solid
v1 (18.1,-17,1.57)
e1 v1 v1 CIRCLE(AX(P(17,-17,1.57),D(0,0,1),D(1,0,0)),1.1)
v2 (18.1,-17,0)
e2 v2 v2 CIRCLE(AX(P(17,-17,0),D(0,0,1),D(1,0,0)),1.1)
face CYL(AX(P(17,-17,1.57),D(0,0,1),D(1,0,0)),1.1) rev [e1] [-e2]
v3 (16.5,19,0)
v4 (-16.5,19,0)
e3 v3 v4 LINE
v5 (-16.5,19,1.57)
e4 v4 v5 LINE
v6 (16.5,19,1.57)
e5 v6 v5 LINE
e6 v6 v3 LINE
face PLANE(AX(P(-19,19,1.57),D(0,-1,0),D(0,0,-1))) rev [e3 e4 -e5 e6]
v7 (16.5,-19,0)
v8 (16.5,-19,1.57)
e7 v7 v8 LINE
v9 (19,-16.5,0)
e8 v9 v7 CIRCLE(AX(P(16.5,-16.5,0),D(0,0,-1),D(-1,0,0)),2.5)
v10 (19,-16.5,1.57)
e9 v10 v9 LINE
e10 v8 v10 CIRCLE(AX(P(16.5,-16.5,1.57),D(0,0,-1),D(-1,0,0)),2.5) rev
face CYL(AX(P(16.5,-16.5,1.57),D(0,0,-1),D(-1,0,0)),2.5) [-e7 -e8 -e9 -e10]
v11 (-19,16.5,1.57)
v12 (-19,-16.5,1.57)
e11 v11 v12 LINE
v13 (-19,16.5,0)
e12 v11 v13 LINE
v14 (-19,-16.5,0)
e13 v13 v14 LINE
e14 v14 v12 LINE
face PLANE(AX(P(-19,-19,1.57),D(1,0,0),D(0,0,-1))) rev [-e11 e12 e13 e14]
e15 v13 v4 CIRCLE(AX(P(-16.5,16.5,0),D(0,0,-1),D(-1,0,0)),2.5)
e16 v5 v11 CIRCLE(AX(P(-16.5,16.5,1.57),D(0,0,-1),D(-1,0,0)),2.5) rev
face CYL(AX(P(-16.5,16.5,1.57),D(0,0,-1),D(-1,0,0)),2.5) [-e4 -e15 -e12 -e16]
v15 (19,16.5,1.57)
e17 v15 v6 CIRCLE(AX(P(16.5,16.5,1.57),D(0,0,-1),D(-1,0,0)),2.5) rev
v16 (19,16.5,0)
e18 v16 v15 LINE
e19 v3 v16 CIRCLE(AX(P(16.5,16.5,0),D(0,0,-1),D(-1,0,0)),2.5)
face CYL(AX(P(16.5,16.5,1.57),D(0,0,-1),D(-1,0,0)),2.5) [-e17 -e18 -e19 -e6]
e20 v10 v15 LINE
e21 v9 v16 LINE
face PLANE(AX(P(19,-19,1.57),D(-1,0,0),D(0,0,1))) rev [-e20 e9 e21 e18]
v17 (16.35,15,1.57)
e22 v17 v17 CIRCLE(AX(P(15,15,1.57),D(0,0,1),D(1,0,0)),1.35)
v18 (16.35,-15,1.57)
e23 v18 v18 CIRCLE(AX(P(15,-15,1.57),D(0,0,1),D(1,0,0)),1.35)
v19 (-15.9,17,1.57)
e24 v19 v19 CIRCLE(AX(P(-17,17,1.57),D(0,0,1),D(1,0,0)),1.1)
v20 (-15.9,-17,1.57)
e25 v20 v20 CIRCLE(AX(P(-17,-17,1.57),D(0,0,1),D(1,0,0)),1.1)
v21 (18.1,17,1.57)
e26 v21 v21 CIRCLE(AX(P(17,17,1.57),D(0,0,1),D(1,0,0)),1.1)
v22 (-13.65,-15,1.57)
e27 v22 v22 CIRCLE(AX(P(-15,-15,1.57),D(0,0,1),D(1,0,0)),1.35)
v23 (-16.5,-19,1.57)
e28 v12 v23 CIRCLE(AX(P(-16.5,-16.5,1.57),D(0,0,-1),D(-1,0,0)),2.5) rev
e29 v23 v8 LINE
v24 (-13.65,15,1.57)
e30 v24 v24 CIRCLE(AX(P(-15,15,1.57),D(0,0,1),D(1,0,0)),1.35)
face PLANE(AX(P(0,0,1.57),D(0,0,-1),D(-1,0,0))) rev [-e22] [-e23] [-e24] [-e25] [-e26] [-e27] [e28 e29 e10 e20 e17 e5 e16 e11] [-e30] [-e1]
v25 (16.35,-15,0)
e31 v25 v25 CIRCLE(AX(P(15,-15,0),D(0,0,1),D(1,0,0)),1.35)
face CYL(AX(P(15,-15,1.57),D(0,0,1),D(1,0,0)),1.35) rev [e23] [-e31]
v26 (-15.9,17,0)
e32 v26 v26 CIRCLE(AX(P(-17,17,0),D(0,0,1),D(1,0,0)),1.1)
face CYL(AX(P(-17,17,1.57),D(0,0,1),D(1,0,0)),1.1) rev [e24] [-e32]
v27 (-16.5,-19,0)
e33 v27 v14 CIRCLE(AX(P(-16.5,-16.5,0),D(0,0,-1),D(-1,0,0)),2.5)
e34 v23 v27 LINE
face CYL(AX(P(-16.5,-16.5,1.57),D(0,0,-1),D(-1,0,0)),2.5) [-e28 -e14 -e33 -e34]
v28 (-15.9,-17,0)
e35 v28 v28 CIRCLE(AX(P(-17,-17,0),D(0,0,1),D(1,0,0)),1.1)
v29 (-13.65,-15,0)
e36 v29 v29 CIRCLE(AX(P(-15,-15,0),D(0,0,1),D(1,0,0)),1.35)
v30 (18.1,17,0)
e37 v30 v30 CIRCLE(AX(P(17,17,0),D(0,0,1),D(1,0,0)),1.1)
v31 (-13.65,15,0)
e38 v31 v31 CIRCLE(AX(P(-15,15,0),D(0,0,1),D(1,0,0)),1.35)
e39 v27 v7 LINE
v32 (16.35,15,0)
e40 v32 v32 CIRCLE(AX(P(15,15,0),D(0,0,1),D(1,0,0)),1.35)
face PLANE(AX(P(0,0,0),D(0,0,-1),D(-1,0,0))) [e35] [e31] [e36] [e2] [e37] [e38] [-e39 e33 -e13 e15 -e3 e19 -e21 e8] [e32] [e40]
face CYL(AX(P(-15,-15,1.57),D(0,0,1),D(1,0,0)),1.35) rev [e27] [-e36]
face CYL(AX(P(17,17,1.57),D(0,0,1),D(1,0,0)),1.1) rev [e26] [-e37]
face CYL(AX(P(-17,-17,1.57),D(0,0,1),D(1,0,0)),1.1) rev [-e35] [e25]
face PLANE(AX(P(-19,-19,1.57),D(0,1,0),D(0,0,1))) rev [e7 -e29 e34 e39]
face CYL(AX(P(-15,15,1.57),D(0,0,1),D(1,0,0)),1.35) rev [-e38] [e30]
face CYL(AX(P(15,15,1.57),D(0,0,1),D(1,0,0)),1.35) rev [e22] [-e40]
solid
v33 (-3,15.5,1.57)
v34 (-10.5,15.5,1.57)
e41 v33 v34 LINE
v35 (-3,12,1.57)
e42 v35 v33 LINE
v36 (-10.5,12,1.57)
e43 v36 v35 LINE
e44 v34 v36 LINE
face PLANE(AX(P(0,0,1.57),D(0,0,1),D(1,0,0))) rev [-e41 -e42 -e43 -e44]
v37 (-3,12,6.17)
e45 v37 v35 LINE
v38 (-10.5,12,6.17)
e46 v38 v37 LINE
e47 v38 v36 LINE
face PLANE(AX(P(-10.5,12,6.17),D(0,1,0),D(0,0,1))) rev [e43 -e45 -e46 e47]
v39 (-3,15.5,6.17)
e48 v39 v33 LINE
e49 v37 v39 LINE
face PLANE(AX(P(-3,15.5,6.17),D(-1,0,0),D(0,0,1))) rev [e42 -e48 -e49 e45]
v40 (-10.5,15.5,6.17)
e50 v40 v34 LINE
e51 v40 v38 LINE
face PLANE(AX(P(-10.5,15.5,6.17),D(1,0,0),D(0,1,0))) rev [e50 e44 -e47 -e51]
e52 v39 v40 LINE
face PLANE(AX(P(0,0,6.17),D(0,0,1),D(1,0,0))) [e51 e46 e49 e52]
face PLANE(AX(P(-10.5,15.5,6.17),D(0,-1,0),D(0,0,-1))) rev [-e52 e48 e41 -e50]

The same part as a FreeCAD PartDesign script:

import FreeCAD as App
import Part
import Sketcher

V = App.Vector


def edges_at(feature, points):
    """Names of the edges that pass closest to the given points."""
    edges = feature.Shape.Edges
    near = lambda p: min(range(len(edges)), key=lambda i: edges[i].distToShape(Part.Vertex(*p))[0])
    return sorted({f"Edge{near(p) + 1}" for p in points})

doc = App.newDocument("Part")
params = doc.addObject("Spreadsheet::Sheet", "Params")
for row, (alias, value) in enumerate([
    ("sketch1_width", "38 mm"),
    ("pad1_length", "1.57 mm"),
    ("fillet_radius", "2.5 mm"),
    ("sketch2_diameter", "2.2 mm"),
    ("hole_diameter", "2.2 mm"),
    ("sketch3_diameter", "2.7 mm"),
    ("hole2_diameter", "2.7 mm"),
    ("sketch4_width", "7.5 mm"),
    ("sketch4_height", "3.5 mm"),
    ("pad2_length", "4.6 mm"),
], start=1):
    params.set(f"A{row}", alias)
    params.set(f"B{row}", "=" + value)
    params.setAlias(f"B{row}", alias)

body = doc.addObject("PartDesign::Body", "Body")

# Sketch on XY plane
sketch1 = body.newObject("Sketcher::SketchObject", "Sketch")
sketch1.AttachmentSupport = (doc.getObject("XY_Plane"), [""])
sketch1.MapMode = "FlatFace"
sketch1.addGeometry([
    Part.LineSegment(V(-19, 19, 0), V(-19, -19, 0)),
    Part.LineSegment(V(-19, -19, 0), V(19, -19, 0)),
    Part.LineSegment(V(19, -19, 0), V(19, 19, 0)),
    Part.LineSegment(V(19, 19, 0), V(-19, 19, 0)),
], False)
sketch1.addConstraint([
    Sketcher.Constraint("Coincident", 0, 2, 1, 1),
    Sketcher.Constraint("Coincident", 1, 2, 2, 1),
    Sketcher.Constraint("Coincident", 2, 2, 3, 1),
    Sketcher.Constraint("Coincident", 3, 2, 0, 1),
    Sketcher.Constraint("Vertical", 0),
    Sketcher.Constraint("Horizontal", 1),
    Sketcher.Constraint("Vertical", 2),
    Sketcher.Constraint("Horizontal", 3),
    Sketcher.Constraint("Symmetric", 0, 2, 2, 2, -1, 1),
    Sketcher.Constraint("Equal", 3, 0),
    Sketcher.Constraint("DistanceX", 1, 1, 1, 2, 38.0),
])
sketch1.setExpression("Constraints[10]", "Params.sketch1_width")
pad1 = body.newObject("PartDesign::Pad", "Pad")
pad1.Profile = sketch1
pad1.setExpression("Length", "Params.pad1_length")
doc.recompute()

fillet = body.newObject("PartDesign::Fillet", "Fillet")
fillet.Base = (pad1, edges_at(pad1, [
    (19, -19, 0.785),
    (-19, -19, 0.785),
    (-19, 19, 0.785),
    (19, 19, 0.785),
]))
fillet.setExpression("Radius", "Params.fillet_radius")

# Sketch on XY plane
sketch2 = body.newObject("Sketcher::SketchObject", "Sketch001")
sketch2.AttachmentSupport = (doc.getObject("XY_Plane"), [""])
sketch2.MapMode = "FlatFace"
sketch2.AttachmentOffset = App.Placement(V(0, 0, 1.57), App.Rotation())
sketch2.addGeometry([
    Part.Circle(V(-17, 17, 0), V(0, 0, 1), 1.1),
    Part.Circle(V(17, -17, 0), V(0, 0, 1), 1.1),
    Part.Circle(V(-17, -17, 0), V(0, 0, 1), 1.1),
    Part.Circle(V(17, 17, 0), V(0, 0, 1), 1.1),
], False)
sketch2.addConstraint([
    Sketcher.Constraint("Equal", 0, 1),
    Sketcher.Constraint("Equal", 1, 2),
    Sketcher.Constraint("Equal", 2, 3),
    Sketcher.Constraint("Symmetric", 0, 3, 1, 3, -1, 1),
    Sketcher.Constraint("Symmetric", 2, 3, 3, 3, -1, 1),
    Sketcher.Constraint("Symmetric", 1, 3, 2, 3, -2),
    Sketcher.Constraint("Diameter", 0, 2.2),
    Sketcher.Constraint("DistanceX", 0, 3, -1, 1, 17.0),
    Sketcher.Constraint("DistanceY", -1, 1, 0, 3, 17.0),
])
sketch2.setExpression("Constraints[6]", "Params.sketch2_diameter")
doc.recompute()
hole = body.newObject("PartDesign::Hole", "Hole")
hole.Profile = sketch2
hole.ThreadType = "None"
hole.setExpression("Diameter", "Params.hole_diameter")
hole.DepthType = "ThroughAll"

# Sketch on XY plane
sketch3 = body.newObject("Sketcher::SketchObject", "Sketch002")
sketch3.AttachmentSupport = (doc.getObject("XY_Plane"), [""])
sketch3.MapMode = "FlatFace"
sketch3.AttachmentOffset = App.Placement(V(0, 0, 1.57), App.Rotation())
sketch3.addGeometry([
    Part.Circle(V(-15, 15, 0), V(0, 0, 1), 1.4),
    Part.Circle(V(15, -15, 0), V(0, 0, 1), 1.4),
    Part.Circle(V(-15, -15, 0), V(0, 0, 1), 1.4),
    Part.Circle(V(15, 15, 0), V(0, 0, 1), 1.4),
], False)
sketch3.addConstraint([
    Sketcher.Constraint("Equal", 0, 1),
    Sketcher.Constraint("Equal", 1, 2),
    Sketcher.Constraint("Equal", 2, 3),
    Sketcher.Constraint("Symmetric", 0, 3, 1, 3, -1, 1),
    Sketcher.Constraint("Symmetric", 2, 3, 3, 3, -1, 1),
    Sketcher.Constraint("Symmetric", 1, 3, 2, 3, -2),
    Sketcher.Constraint("Diameter", 0, 2.7),
    Sketcher.Constraint("DistanceX", 0, 3, -1, 1, 15.0),
    Sketcher.Constraint("DistanceY", -1, 1, 0, 3, 15.0),
])
sketch3.setExpression("Constraints[6]", "Params.sketch3_diameter")
doc.recompute()
hole2 = body.newObject("PartDesign::Hole", "Hole001")
hole2.Profile = sketch3
hole2.ThreadType = "None"
hole2.setExpression("Diameter", "Params.hole2_diameter")
hole2.DepthType = "ThroughAll"
body2 = doc.addObject("PartDesign::Body", "Body001")

# Sketch on XY plane
sketch4 = body2.newObject("Sketcher::SketchObject", "Sketch003")
sketch4.AttachmentSupport = (doc.getObject("XY_Plane001"), [""])
sketch4.MapMode = "FlatFace"
sketch4.AttachmentOffset = App.Placement(V(0, 0, 1.57), App.Rotation())
sketch4.addGeometry([
    Part.LineSegment(V(-10.5, 15.5, 0), V(-10.5, 12, 0)),
    Part.LineSegment(V(-10.5, 12, 0), V(-3, 12, 0)),
    Part.LineSegment(V(-3, 12, 0), V(-3, 15.5, 0)),
    Part.LineSegment(V(-3, 15.5, 0), V(-10.5, 15.5, 0)),
], False)
sketch4.addConstraint([
    Sketcher.Constraint("Coincident", 0, 2, 1, 1),
    Sketcher.Constraint("Coincident", 1, 2, 2, 1),
    Sketcher.Constraint("Coincident", 2, 2, 3, 1),
    Sketcher.Constraint("Coincident", 3, 2, 0, 1),
    Sketcher.Constraint("Vertical", 0),
    Sketcher.Constraint("Horizontal", 1),
    Sketcher.Constraint("Vertical", 2),
    Sketcher.Constraint("Horizontal", 3),
    Sketcher.Constraint("DistanceX", 1, 1, 1, 2, 7.5),
    Sketcher.Constraint("DistanceY", 0, 2, 0, 1, 3.5),
    Sketcher.Constraint("DistanceY", -1, 1, 0, 2, 12.0),
    Sketcher.Constraint("DistanceX", 1, 2, -1, 1, 3.0),
])
sketch4.setExpression("Constraints[8]", "Params.sketch4_width")
sketch4.setExpression("Constraints[9]", "Params.sketch4_height")
pad2 = body2.newObject("PartDesign::Pad", "Pad001")
pad2.Profile = sketch4
pad2.setExpression("Length", "Params.pad2_length")

doc.recompute()
